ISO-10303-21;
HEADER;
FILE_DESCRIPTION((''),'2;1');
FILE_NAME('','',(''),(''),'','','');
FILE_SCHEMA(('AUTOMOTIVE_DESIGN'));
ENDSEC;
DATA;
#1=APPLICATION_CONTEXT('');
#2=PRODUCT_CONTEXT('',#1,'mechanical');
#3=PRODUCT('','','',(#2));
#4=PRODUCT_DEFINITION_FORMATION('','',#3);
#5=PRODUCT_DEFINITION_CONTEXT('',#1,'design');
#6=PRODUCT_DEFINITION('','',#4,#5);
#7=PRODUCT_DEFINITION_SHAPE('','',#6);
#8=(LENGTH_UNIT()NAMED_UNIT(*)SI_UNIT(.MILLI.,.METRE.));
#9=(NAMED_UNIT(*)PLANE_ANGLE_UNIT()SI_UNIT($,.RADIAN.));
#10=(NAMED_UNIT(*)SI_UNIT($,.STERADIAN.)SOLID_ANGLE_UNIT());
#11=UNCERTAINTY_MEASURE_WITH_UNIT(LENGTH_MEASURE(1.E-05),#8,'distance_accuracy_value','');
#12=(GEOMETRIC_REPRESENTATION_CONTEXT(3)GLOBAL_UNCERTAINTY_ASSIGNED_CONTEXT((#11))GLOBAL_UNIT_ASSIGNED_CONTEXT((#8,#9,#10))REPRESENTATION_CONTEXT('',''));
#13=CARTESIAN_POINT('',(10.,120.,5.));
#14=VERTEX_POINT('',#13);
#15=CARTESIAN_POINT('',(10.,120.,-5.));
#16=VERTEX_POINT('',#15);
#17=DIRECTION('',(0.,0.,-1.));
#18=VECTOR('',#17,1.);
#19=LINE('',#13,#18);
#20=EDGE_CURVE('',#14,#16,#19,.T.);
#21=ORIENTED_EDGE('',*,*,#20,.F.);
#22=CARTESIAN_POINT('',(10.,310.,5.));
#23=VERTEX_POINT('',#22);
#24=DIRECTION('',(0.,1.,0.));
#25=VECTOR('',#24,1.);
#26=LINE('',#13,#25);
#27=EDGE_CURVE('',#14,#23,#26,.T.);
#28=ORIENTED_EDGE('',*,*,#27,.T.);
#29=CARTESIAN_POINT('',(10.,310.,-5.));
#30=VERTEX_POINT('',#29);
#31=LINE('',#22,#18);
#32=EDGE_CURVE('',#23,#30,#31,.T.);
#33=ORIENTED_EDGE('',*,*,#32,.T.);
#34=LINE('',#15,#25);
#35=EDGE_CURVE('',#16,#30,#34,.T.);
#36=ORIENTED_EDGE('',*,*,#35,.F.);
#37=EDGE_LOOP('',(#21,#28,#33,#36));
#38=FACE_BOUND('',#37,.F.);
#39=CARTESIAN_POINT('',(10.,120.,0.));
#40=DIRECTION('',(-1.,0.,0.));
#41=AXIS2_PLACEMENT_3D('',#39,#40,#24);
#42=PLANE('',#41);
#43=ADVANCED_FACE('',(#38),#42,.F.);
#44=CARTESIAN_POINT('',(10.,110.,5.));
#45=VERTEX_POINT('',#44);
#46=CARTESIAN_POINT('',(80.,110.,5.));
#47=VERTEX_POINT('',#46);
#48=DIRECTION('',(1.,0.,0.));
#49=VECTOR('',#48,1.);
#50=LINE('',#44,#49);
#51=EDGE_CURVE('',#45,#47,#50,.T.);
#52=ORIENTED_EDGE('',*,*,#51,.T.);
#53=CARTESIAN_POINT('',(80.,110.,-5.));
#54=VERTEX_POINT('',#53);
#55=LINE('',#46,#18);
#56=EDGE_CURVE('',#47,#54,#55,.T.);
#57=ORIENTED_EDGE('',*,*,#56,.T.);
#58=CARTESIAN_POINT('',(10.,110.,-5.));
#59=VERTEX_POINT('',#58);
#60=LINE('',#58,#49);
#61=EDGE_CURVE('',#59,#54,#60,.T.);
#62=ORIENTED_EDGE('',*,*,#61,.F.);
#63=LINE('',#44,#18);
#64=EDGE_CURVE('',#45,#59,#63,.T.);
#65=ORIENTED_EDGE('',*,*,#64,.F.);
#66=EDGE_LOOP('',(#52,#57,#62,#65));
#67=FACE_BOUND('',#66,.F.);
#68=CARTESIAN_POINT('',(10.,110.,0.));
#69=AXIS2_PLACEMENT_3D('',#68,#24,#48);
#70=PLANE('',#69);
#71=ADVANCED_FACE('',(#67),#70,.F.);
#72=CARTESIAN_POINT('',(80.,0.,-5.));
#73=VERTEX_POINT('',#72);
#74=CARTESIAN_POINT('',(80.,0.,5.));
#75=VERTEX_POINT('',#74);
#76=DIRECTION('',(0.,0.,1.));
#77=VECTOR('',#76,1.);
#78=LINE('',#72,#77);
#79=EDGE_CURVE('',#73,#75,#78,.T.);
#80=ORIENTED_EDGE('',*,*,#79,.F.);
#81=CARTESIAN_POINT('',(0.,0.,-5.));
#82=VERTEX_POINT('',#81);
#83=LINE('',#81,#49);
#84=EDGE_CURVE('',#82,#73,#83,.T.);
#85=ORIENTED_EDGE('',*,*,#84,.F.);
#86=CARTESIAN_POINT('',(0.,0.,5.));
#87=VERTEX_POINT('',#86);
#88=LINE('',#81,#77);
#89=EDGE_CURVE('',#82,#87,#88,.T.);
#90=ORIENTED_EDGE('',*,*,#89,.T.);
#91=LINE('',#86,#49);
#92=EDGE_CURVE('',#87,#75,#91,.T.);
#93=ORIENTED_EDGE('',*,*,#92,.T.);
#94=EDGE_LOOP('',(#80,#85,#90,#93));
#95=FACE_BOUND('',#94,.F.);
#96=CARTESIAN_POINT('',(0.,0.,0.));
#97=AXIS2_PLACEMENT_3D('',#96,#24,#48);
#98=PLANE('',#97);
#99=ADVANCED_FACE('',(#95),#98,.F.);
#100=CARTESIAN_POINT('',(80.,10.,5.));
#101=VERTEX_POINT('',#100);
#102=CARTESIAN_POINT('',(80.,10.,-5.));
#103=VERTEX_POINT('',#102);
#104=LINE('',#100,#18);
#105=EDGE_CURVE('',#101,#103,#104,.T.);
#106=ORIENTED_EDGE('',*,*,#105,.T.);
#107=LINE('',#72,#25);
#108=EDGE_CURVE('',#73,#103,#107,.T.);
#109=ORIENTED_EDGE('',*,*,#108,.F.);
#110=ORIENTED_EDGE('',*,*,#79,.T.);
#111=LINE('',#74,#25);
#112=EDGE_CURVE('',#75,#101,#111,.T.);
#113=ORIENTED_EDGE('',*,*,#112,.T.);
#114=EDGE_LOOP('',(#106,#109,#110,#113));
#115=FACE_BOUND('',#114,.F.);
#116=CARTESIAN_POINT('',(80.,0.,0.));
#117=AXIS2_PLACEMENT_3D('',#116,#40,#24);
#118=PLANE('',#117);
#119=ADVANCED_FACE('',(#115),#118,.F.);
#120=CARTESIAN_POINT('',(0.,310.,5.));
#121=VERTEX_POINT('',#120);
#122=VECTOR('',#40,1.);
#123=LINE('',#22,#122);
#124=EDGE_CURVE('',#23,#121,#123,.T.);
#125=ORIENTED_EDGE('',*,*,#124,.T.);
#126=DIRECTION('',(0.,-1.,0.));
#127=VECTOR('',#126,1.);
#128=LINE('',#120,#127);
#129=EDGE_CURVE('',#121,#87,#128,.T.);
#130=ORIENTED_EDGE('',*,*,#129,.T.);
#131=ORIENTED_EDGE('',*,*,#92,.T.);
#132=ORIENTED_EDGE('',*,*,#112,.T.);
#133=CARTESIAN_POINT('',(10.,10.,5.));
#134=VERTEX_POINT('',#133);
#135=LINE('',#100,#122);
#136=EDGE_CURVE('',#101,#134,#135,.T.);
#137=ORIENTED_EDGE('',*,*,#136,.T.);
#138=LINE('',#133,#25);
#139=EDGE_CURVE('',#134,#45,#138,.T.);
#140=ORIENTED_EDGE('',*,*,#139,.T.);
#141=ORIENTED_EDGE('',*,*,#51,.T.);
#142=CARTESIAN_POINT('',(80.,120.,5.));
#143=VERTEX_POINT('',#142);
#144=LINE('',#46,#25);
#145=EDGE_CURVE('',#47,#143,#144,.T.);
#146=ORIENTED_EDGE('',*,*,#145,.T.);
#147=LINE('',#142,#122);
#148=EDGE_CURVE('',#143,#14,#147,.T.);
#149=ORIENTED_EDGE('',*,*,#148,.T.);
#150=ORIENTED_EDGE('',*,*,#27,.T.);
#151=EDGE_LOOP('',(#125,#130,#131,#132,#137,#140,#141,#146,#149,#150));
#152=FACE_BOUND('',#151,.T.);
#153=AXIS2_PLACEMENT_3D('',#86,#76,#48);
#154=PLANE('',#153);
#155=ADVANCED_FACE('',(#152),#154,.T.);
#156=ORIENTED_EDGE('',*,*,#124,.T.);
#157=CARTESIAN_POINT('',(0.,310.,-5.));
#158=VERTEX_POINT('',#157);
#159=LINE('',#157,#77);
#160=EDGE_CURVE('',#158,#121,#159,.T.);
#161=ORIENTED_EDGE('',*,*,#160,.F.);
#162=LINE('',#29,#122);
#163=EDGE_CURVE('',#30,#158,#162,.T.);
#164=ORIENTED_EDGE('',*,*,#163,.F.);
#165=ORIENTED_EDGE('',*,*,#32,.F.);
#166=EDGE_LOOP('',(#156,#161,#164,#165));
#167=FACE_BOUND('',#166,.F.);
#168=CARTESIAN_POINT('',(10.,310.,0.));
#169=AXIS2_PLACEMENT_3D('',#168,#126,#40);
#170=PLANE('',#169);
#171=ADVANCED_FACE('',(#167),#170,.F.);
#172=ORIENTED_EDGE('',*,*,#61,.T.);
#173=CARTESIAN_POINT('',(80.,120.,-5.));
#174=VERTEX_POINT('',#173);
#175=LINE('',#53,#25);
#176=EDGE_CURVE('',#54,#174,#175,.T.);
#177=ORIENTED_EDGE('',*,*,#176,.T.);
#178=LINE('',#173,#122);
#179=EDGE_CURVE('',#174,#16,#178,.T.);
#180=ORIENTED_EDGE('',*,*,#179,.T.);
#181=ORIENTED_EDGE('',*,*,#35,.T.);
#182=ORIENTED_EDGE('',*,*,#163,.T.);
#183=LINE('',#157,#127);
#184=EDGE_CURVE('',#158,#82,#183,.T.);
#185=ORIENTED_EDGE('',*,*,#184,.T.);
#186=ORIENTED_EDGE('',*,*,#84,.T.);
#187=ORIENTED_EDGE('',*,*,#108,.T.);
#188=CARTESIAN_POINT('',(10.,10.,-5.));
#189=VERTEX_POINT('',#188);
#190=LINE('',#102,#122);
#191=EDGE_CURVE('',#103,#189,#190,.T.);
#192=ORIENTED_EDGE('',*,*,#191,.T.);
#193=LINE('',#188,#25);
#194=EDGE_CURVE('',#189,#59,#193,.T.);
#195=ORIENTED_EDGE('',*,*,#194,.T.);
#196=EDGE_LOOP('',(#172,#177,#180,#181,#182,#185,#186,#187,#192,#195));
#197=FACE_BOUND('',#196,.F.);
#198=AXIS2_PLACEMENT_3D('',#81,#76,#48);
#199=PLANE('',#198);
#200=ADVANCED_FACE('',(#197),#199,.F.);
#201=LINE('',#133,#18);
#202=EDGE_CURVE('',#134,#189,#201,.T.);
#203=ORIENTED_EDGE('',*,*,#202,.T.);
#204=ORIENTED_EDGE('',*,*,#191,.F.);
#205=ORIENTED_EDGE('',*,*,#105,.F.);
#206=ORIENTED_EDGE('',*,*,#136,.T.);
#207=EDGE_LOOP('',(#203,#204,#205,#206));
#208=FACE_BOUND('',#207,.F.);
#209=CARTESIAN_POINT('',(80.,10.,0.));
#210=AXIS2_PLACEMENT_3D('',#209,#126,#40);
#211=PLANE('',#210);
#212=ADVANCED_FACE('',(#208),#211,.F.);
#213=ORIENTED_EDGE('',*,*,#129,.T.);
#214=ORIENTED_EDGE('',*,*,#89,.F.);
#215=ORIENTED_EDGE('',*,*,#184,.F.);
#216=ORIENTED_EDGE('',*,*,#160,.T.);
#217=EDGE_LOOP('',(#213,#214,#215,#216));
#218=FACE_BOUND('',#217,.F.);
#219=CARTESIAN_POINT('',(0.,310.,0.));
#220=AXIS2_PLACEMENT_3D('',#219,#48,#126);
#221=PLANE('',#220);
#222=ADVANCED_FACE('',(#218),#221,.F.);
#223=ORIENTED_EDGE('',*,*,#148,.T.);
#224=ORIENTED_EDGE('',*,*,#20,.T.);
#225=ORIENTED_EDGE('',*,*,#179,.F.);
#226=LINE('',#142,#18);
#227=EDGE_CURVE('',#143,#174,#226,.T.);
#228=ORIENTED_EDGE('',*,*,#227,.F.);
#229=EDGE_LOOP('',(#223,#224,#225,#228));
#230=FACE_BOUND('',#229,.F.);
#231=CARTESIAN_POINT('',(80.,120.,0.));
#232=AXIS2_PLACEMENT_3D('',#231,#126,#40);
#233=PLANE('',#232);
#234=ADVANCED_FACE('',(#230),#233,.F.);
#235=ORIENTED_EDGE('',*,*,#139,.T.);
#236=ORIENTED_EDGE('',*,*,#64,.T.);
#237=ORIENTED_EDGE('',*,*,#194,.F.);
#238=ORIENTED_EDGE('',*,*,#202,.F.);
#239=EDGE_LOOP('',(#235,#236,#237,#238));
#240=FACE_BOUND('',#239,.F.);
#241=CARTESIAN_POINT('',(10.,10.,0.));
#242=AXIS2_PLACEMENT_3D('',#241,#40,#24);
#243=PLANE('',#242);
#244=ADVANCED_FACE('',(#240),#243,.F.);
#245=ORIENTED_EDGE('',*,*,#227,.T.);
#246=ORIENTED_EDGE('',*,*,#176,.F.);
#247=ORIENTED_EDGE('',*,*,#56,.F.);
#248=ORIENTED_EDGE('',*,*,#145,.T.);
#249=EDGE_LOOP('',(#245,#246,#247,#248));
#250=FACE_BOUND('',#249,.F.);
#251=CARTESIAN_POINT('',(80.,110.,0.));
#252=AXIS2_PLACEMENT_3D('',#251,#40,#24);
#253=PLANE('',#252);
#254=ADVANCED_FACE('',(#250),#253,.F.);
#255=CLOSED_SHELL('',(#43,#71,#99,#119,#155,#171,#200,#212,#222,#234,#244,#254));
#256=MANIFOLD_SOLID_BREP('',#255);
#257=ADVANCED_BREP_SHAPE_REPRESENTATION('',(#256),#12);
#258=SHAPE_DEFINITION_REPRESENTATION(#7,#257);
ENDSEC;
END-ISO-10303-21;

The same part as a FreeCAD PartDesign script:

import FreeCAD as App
import Part
import Sketcher
from FreeCAD import Vector

doc = App.newDocument("Part")
body = doc.addObject("PartDesign::Body", "Body")

# Sketch on XY plane
sketch1 = body.newObject("Sketcher::SketchObject", "Sketch")
sketch1.AttachmentSupport = (doc.getObject("XY_Plane"), [""])
sketch1.MapMode = "FlatFace"
sketch1.addGeometry([
    Part.LineSegment(Vector(10, 310, 0), Vector(0, 310, 0)),  # 0
    Part.LineSegment(Vector(0, 310, 0), Vector(0, 0, 0)),  # 1
    Part.LineSegment(Vector(0, 0, 0), Vector(80, 0, 0)),  # 2
    Part.LineSegment(Vector(80, 0, 0), Vector(80, 10, 0)),  # 3
    Part.LineSegment(Vector(80, 10, 0), Vector(10, 10, 0)),  # 4
    Part.LineSegment(Vector(10, 10, 0), Vector(10, 110, 0)),  # 5
    Part.LineSegment(Vector(10, 110, 0), Vector(80, 110, 0)),  # 6
    Part.LineSegment(Vector(80, 110, 0), Vector(80, 120, 0)),  # 7
    Part.LineSegment(Vector(80, 120, 0), Vector(10, 120, 0)),  # 8
    Part.LineSegment(Vector(10, 120, 0), Vector(10, 310, 0)),  # 9
], False)
sketch1.addConstraint([
    Sketcher.Constraint("Coincident", 0, 2, 1, 1),
    Sketcher.Constraint("Coincident", 1, 2, 2, 1),
    Sketcher.Constraint("Coincident", 2, 2, 3, 1),
    Sketcher.Constraint("Coincident", 3, 2, 4, 1),
    Sketcher.Constraint("Coincident", 4, 2, 5, 1),
    Sketcher.Constraint("Coincident", 5, 2, 6, 1),
    Sketcher.Constraint("Coincident", 6, 2, 7, 1),
    Sketcher.Constraint("Coincident", 7, 2, 8, 1),
    Sketcher.Constraint("Coincident", 8, 2, 9, 1),
    Sketcher.Constraint("Coincident", 9, 2, 0, 1),
    Sketcher.Constraint("Horizontal", 0),
    Sketcher.Constraint("Vertical", 1),
    Sketcher.Constraint("Horizontal", 2),
    Sketcher.Constraint("Vertical", 3),
    Sketcher.Constraint("Horizontal", 4),
    Sketcher.Constraint("Vertical", 5),
    Sketcher.Constraint("Horizontal", 6),
    Sketcher.Constraint("Vertical", 7),
    Sketcher.Constraint("Horizontal", 8),
    Sketcher.Constraint("Vertical", 9),
    Sketcher.Constraint("Coincident", 1, 2, -1, 1),
    Sketcher.Constraint("Vertical", 3, 2, 6, 2),
    Sketcher.Constraint("Vertical", 5, 2, 8, 2),
    Sketcher.Constraint("Equal", 0, 3),
    Sketcher.Constraint("Equal", 3, 7),
    Sketcher.Constraint("DistanceX", 0, 2, 0, 1, 10.0),
    Sketcher.Constraint("DistanceX", 2, 1, 2, 2, 80.0),
    Sketcher.Constraint("DistanceY", 1, 2, 1, 1, 310.0),
    Sketcher.Constraint("DistanceY", 5, 1, 5, 2, 100.0),
])
pad1 = body.newObject("PartDesign::Pad", "Pad")
pad1.Profile = sketch1
pad1.Length = 10
pad1.Midplane = True

doc.recompute()
